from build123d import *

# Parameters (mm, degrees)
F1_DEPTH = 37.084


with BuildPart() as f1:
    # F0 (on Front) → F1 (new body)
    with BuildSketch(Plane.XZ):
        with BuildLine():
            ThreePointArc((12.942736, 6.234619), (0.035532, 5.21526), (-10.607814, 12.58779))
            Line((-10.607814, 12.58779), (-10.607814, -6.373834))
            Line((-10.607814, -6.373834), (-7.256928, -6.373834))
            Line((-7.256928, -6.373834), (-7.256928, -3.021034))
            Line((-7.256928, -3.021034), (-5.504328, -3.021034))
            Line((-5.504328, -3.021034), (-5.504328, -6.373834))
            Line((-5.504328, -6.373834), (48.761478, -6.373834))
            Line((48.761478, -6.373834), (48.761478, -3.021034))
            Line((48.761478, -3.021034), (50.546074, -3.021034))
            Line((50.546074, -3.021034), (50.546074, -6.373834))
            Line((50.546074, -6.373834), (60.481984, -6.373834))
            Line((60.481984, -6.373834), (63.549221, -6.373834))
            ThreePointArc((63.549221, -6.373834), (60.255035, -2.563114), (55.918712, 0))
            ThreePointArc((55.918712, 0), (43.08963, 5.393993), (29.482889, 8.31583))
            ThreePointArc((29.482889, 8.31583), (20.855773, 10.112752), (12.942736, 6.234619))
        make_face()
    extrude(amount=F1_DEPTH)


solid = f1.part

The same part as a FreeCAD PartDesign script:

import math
import FreeCAD as App
import Part
import Sketcher
from FreeCAD import Vector
Q = App.Units.Quantity

doc = App.newDocument("Part")
params = doc.addObject("Spreadsheet::Sheet", "Params")
for row, (alias, value) in enumerate([
    ("sketch1_width", "0.069 in"),
    ("sketch1_height", "0.132 in"),
    ("pad1_length", "1.46 in"),
], start=1):
    params.set(f"A{row}", alias)
    params.set(f"B{row}", "=" + value)
    params.setAlias(f"B{row}", alias)

body = doc.addObject("PartDesign::Body", "Body")

# Sketch on XZ plane
sketch1 = body.newObject("Sketcher::SketchObject", "Sketch")
sketch1.AttachmentSupport = (doc.getObject("XZ_Plane"), [""])
sketch1.MapMode = "FlatFace"
sketch1.addGeometry([
    Part.ArcOfCircle(Part.Circle(Vector(5.058797, 23.835984, 0), Vector(0, 0, 1), 19.286383), math.radians(-144.322695), math.radians(-65.871612)),  # 0
    Part.LineSegment(Vector(-10.607814, 12.58779, 0), Vector(-10.607814, -6.373834, 0)),  # 1
    Part.LineSegment(Vector(-10.607814, -6.373834, 0), Vector(-7.256928, -6.373834, 0)),  # 2
    Part.LineSegment(Vector(-7.256928, -6.373834, 0), Vector(-7.256928, -3.021034, 0)),  # 3
    Part.LineSegment(Vector(-7.256928, -3.021034, 0), Vector(-5.504328, -3.021034, 0)),  # 4
    Part.LineSegment(Vector(-5.504328, -3.021034, 0), Vector(-5.504328, -6.373834, 0)),  # 5
    Part.LineSegment(Vector(-5.504328, -6.373834, 0), Vector(48.761478, -6.373834, 0)),  # 6
    Part.LineSegment(Vector(48.761478, -6.373834, 0), Vector(48.761478, -3.021034, 0)),  # 7
    Part.LineSegment(Vector(48.761478, -3.021034, 0), Vector(50.546074, -3.021034, 0)),  # 8
    Part.LineSegment(Vector(50.546074, -3.021034, 0), Vector(50.546074, -6.373834, 0)),  # 9
    Part.LineSegment(Vector(50.546074, -6.373834, 0), Vector(63.549221, -6.373834, 0)),  # 10
    Part.ArcOfCircle(Part.Circle(Vector(50.248717, -14.542293, 0), Vector(0, 0, 1), 15.608559), math.radians(31.556023), math.radians(68.699344)),  # 11
    Part.ArcOfCircle(Part.Circle(Vector(20.664035, -65.896432, 0), Vector(0, 0, 1), 74.73441), math.radians(61.853161), math.radians(83.223159)),  # 12
    Part.ArcOfCircle(Part.Circle(Vector(22.550734, -3.35773, 0), Vector(0, 0, 1), 13.5767), math.radians(59.296726), math.radians(135.046696)),  # 13
], False)
sketch1.addConstraint([
    Sketcher.Constraint("Coincident", 0, 1, 1, 1),
    Sketcher.Constraint("Coincident", 1, 2, 2, 1),
    Sketcher.Constraint("Coincident", 2, 2, 3, 1),
    Sketcher.Constraint("Coincident", 3, 2, 4, 1),
    Sketcher.Constraint("Coincident", 4, 2, 5, 1),
    Sketcher.Constraint("Coincident", 5, 2, 6, 1),
    Sketcher.Constraint("Coincident", 6, 2, 7, 1),
    Sketcher.Constraint("Coincident", 7, 2, 8, 1),
    Sketcher.Constraint("Coincident", 8, 2, 9, 1),
    Sketcher.Constraint("Coincident", 9, 2, 10, 1),
    Sketcher.Constraint("Coincident", 10, 2, 11, 1),
    Sketcher.Constraint("Coincident", 11, 2, 12, 1),
    Sketcher.Constraint("Coincident", 12, 2, 13, 1),
    Sketcher.Constraint("Coincident", 13, 2, 0, 2),
    Sketcher.Constraint("Vertical", 1),
    Sketcher.Constraint("Horizontal", 2),
    Sketcher.Constraint("Vertical", 3),
    Sketcher.Constraint("Horizontal", 4),
    Sketcher.Constraint("Vertical", 5),
    Sketcher.Constraint("Horizontal", 6),
    Sketcher.Constraint("Vertical", 7),
    Sketcher.Constraint("Horizontal", 8),
    Sketcher.Constraint("Vertical", 9),
    Sketcher.Constraint("Horizontal", 10),
    Sketcher.Constraint("PointOnObject", 11, 2, -1),
    Sketcher.Constraint("Horizontal", 2, 2, 5, 2),
    Sketcher.Constraint("Horizontal", 4, 2, 7, 2),
    Sketcher.Constraint("Horizontal", 6, 2, 9, 2),
    Sketcher.Constraint("DistanceX", 4, 1, 4, 2, Q("0.069 in")),
    Sketcher.Constraint("DistanceY", 3, 1, 3, 2, Q("0.132 in")),
    Sketcher.Constraint("Radius", 13, Q("13.5767 mm")),
    Sketcher.Constraint("Radius", 11, Q("15.608559 mm")),
    Sketcher.Constraint("Radius", 12, Q("74.73441 mm")),
    Sketcher.Constraint("Radius", 0, Q("19.286383 mm")),
    Sketcher.Constraint("DistanceX", 12, 3, 13, 3, Q("1.886699 mm")),
    Sketcher.Constraint("DistanceY", 12, 3, 13, 3, Q("62.538702 mm")),
    Sketcher.Constraint("DistanceY", 12, 3, 1, 2, Q("59.522598 mm")),
    Sketcher.Constraint("DistanceX", 2, 1, 2, 2, Q("3.350886 mm")),
    Sketcher.Constraint("DistanceX", 6, 1, 6, 2, Q("54.265806 mm")),
    Sketcher.Constraint("DistanceX", 8, 1, 8, 2, Q("1.784596 mm")),
    Sketcher.Constraint("DistanceX", 10, 1, 10, 2, Q("13.003147 mm")),
    Sketcher.Constraint("DistanceY", 1, 2, 1, 1, Q("18.961624 mm")),
    Sketcher.Constraint("DistanceY", 13, 3, -1, 1, Q("3.35773 mm")),
    Sketcher.Constraint("DistanceX", 2, 2, -1, 1, Q("7.256928 mm")),
    Sketcher.Constraint("DistanceX", -1, 1, 11, 2, Q("55.918712 mm")),
    Sketcher.Constraint("DistanceY", -1, 1, 13, 2, Q("6.234619 mm")),
])
sketch1.setExpression("Constraints[28]", "Params.sketch1_width")
sketch1.setExpression("Constraints[29]", "Params.sketch1_height")
pad1 = body.newObject("PartDesign::Pad", "Pad")
pad1.Profile = sketch1
pad1.setExpression("Length", "Params.pad1_length")

doc.recompute()
